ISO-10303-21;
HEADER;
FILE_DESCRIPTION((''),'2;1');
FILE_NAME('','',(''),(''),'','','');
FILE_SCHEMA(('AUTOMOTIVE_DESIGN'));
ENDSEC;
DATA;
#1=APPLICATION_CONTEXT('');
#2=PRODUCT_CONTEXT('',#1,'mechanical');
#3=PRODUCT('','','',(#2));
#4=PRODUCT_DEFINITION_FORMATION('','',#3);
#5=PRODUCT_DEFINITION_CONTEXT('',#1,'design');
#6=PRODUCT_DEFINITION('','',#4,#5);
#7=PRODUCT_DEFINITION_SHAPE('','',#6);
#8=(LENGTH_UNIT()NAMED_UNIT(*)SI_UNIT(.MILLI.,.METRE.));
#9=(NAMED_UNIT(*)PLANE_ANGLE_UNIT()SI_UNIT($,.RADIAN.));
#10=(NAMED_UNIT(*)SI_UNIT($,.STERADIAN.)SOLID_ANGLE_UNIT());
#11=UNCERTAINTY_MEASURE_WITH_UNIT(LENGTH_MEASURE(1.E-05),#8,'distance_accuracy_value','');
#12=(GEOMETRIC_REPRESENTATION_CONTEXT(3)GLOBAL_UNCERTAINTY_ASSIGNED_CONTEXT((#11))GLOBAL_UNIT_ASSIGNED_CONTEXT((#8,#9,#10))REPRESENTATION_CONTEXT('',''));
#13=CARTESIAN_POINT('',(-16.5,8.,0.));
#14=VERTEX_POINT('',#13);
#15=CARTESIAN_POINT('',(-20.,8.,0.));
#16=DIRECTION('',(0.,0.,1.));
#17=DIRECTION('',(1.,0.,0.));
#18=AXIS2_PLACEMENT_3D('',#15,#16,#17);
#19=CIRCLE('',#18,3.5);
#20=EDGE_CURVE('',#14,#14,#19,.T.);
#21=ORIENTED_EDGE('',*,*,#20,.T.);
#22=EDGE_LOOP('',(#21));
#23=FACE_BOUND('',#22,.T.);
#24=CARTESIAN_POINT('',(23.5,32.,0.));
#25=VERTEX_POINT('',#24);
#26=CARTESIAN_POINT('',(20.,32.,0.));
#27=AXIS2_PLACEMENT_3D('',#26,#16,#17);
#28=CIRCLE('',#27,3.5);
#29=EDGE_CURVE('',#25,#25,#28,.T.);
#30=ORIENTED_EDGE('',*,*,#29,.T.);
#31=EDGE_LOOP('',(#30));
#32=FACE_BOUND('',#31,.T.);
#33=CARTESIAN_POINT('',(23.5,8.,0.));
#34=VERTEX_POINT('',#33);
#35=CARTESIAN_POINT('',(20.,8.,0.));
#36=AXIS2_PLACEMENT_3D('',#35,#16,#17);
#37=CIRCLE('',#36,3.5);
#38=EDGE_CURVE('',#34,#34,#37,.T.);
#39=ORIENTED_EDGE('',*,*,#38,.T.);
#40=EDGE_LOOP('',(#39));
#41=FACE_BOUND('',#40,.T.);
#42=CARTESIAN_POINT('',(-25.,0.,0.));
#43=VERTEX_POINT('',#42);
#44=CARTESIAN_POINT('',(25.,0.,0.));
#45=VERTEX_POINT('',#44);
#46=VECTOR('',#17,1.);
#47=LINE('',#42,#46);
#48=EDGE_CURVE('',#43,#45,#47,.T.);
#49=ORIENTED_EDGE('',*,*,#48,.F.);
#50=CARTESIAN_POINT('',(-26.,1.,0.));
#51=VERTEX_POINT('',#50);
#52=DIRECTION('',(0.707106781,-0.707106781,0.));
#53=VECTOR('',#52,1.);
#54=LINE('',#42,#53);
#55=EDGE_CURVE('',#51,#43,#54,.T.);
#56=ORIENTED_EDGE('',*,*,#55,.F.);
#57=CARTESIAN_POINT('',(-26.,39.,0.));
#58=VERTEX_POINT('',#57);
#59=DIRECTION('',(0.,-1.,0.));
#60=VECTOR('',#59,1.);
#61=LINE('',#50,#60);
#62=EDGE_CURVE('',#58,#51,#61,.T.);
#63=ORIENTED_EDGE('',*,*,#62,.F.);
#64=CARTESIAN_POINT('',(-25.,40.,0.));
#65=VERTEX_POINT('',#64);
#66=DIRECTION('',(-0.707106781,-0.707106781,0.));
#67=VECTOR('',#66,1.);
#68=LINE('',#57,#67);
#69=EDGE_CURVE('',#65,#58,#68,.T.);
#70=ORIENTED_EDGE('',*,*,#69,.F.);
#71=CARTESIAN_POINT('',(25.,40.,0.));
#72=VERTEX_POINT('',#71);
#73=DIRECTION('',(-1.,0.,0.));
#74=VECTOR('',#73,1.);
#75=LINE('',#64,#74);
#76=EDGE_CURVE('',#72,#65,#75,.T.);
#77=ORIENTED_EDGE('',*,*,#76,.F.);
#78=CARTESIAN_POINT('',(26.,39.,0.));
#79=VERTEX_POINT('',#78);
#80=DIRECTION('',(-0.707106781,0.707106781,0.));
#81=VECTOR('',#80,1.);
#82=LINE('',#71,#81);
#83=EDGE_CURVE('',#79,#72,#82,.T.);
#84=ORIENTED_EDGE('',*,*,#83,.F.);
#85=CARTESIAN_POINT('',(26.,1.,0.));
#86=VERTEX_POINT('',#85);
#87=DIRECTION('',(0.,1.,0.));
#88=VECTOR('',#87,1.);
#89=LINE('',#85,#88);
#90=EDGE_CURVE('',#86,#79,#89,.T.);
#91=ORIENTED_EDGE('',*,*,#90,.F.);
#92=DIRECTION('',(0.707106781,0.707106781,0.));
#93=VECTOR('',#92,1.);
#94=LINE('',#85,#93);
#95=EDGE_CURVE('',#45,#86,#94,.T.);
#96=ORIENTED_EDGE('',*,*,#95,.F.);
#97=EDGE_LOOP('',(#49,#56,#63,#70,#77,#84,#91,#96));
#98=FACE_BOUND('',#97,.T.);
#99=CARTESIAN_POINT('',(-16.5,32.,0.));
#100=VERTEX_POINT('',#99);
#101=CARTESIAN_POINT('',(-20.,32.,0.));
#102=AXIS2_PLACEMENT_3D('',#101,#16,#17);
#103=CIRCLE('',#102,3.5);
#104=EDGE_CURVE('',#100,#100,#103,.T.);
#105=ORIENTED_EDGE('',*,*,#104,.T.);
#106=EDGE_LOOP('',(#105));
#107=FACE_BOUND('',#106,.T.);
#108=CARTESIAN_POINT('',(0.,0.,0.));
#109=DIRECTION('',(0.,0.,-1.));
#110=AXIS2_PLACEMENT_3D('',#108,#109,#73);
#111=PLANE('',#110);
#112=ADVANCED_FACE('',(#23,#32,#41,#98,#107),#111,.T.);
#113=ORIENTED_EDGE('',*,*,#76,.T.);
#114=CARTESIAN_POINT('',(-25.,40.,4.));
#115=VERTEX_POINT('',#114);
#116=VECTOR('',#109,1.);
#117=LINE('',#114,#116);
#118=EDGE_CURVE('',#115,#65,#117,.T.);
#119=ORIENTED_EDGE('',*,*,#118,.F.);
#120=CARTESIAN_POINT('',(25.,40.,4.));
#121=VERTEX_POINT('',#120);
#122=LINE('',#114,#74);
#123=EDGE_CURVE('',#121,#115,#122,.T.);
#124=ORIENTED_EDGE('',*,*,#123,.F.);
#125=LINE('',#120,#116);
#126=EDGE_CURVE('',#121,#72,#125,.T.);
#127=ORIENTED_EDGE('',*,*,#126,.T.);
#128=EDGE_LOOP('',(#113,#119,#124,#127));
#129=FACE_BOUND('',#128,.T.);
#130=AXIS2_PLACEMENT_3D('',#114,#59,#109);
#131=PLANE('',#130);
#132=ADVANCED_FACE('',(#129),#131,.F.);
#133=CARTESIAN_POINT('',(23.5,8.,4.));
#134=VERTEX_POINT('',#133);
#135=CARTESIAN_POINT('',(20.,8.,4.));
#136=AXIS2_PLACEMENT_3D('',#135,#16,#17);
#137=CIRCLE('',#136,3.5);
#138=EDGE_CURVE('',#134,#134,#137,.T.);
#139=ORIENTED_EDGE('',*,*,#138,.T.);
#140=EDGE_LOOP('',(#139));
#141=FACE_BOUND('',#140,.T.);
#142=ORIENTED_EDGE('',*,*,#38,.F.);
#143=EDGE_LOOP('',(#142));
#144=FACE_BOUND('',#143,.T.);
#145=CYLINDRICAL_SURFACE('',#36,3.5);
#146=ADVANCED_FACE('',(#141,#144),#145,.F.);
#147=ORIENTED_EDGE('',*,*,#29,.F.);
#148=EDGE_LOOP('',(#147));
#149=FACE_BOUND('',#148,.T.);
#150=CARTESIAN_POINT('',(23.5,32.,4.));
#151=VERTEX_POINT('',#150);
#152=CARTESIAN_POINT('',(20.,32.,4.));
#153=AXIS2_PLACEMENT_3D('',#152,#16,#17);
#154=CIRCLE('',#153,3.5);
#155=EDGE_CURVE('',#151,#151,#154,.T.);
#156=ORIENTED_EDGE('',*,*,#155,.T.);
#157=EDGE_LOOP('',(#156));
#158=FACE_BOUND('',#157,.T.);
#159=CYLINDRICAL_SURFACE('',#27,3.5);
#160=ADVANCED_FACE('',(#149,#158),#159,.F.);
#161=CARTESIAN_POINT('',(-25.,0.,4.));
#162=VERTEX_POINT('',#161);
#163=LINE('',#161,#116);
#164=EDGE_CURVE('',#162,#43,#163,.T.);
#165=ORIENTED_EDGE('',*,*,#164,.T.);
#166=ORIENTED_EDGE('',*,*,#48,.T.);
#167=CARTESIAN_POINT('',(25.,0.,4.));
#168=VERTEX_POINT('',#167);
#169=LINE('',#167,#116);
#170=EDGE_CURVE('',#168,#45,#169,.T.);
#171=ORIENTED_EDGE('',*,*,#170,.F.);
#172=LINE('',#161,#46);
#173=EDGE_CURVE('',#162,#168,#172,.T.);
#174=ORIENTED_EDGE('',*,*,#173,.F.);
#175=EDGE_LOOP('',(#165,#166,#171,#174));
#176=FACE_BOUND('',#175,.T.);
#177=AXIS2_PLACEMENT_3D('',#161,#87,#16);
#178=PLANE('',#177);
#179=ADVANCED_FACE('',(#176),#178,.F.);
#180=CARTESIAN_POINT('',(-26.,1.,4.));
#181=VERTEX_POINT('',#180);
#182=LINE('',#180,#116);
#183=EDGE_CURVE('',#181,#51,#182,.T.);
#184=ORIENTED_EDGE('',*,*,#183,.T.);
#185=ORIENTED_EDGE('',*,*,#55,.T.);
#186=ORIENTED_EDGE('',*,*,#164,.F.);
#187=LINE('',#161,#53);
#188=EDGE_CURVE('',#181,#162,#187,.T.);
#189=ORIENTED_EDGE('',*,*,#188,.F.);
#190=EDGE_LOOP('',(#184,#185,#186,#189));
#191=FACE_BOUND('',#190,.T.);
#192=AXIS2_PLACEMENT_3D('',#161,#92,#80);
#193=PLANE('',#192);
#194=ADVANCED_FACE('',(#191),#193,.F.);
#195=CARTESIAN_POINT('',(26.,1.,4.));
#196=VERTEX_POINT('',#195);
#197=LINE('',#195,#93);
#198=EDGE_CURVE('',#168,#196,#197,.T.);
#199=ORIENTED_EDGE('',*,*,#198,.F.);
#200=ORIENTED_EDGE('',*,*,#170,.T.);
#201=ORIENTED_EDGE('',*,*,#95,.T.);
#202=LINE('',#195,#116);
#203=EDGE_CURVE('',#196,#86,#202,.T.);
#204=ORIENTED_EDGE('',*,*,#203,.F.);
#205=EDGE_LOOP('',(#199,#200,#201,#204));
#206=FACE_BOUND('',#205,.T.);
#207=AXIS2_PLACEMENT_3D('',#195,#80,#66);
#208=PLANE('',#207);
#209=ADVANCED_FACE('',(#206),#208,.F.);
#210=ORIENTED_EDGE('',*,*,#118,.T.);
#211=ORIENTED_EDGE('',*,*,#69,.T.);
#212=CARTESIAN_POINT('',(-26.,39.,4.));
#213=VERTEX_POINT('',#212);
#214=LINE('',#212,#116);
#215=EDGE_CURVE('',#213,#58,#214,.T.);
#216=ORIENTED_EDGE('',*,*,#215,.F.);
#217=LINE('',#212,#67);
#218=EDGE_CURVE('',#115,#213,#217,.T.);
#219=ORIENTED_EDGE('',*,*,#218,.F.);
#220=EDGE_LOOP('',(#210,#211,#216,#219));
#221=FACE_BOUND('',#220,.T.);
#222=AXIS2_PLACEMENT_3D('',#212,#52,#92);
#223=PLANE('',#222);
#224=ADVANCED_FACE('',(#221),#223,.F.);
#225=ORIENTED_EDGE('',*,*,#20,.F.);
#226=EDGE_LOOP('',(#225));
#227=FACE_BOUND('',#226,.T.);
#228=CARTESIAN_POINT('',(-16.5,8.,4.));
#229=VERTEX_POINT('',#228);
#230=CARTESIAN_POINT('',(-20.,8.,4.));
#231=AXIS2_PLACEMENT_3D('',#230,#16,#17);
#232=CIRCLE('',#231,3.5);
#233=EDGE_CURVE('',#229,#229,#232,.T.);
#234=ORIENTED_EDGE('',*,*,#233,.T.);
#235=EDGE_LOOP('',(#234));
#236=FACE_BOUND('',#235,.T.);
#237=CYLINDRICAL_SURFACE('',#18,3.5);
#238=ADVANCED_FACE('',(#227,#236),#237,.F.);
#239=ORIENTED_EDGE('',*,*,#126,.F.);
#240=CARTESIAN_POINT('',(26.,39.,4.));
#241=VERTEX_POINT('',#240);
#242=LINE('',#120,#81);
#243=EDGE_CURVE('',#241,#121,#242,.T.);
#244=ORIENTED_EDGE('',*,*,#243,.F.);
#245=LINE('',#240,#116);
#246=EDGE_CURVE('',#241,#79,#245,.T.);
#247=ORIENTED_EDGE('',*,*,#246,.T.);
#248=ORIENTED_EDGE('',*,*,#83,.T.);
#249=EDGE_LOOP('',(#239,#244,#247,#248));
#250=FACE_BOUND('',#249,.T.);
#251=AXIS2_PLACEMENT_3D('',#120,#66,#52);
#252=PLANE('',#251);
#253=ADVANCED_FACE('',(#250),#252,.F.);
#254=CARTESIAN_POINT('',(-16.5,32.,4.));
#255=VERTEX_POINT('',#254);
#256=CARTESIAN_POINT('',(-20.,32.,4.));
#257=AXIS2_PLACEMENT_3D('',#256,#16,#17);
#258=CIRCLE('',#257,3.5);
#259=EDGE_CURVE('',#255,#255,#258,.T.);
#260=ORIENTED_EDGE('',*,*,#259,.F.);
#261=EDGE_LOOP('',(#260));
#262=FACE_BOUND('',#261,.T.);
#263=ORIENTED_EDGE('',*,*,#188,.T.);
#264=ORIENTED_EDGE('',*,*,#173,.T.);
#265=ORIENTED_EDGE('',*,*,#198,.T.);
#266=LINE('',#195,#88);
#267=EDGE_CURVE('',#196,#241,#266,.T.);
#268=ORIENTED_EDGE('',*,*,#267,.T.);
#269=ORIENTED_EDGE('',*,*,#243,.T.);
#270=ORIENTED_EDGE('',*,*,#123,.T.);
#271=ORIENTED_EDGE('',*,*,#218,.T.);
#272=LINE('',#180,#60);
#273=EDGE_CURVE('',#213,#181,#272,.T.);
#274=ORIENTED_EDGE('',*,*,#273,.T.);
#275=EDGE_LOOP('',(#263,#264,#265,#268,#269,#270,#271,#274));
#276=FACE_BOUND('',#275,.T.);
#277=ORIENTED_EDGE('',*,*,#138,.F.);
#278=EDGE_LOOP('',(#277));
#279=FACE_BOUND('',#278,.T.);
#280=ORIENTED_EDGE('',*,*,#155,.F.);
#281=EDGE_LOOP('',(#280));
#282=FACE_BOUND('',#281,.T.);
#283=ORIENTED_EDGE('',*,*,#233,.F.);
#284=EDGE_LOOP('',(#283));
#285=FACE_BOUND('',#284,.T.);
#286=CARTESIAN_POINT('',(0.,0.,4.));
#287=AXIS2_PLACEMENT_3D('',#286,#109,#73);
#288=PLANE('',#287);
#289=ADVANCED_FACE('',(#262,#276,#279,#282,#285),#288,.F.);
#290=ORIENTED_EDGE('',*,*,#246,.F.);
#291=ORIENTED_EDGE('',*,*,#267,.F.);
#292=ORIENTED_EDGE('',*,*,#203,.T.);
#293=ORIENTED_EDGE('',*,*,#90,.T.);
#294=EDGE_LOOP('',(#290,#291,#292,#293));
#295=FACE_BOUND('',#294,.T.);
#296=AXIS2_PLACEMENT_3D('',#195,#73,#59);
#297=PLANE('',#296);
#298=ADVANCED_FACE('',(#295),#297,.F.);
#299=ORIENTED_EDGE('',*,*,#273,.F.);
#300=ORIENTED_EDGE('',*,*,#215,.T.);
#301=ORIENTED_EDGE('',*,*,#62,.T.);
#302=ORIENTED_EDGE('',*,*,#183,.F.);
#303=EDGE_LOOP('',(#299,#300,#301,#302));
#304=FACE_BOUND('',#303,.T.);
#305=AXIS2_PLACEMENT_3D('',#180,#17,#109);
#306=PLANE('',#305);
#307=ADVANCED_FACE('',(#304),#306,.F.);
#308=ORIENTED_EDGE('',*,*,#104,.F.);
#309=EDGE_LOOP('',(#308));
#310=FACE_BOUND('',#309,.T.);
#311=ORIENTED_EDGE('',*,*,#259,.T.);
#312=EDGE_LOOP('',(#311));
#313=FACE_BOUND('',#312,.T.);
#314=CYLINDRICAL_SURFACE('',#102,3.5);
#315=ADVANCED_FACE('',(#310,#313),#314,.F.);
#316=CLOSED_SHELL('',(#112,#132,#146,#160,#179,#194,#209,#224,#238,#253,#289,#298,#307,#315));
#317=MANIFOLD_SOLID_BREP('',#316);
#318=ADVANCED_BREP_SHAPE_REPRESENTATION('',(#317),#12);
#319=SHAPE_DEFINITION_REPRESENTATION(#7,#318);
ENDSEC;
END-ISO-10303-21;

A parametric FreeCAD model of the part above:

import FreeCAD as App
import Part
import Sketcher

V = App.Vector
Q = App.Units.Quantity

doc = App.newDocument("Part")
body = doc.addObject("PartDesign::Body", "Body")

sketch1 = body.newObject("Sketcher::SketchObject", "Sketch")
sketch1.AttachmentSupport = (doc.getObject("XY_Plane"), [""])
sketch1.MapMode = "FlatFace"
sketch1.addGeometry([
    Part.LineSegment(V(25, 40, 0), V(-25, 40, 0)),
    Part.LineSegment(V(-25, 40, 0), V(-26, 39, 0)),
    Part.LineSegment(V(-26, 39, 0), V(-26, 1, 0)),
    Part.LineSegment(V(-26, 1, 0), V(-25, 0, 0)),
    Part.LineSegment(V(-25, 0, 0), V(25, 0, 0)),
    Part.LineSegment(V(25, 0, 0), V(26, 1, 0)),
    Part.LineSegment(V(26, 1, 0), V(26, 39, 0)),
    Part.LineSegment(V(26, 39, 0), V(25, 40, 0)),
], False)
sketch1.addConstraint([
    Sketcher.Constraint("Coincident", 0, 2, 1, 1),
    Sketcher.Constraint("Coincident", 1, 2, 2, 1),
    Sketcher.Constraint("Coincident", 2, 2, 3, 1),
    Sketcher.Constraint("Coincident", 3, 2, 4, 1),
    Sketcher.Constraint("Coincident", 4, 2, 5, 1),
    Sketcher.Constraint("Coincident", 5, 2, 6, 1),
    Sketcher.Constraint("Coincident", 6, 2, 7, 1),
    Sketcher.Constraint("Coincident", 7, 2, 0, 1),
    Sketcher.Constraint("Horizontal", 0),
    Sketcher.Constraint("Vertical", 2),
    Sketcher.Constraint("Horizontal", 4),
    Sketcher.Constraint("Vertical", 6),
    Sketcher.Constraint("Symmetric", 3, 2, 4, 2, -1, 1),
    Sketcher.Constraint("Symmetric", 2, 2, 5, 2, -2),
    Sketcher.Constraint("Perpendicular", 1, 3),
    Sketcher.Constraint("Perpendicular", 3, 5),
    Sketcher.Constraint("Perpendicular", 5, 7),
    Sketcher.Constraint("Horizontal", 1, 2, 6, 2),
    Sketcher.Constraint("Vertical", 0, 2, 3, 2),
    Sketcher.Constraint("DistanceX", 0, 2, 0, 1, Q("50 mm")),
    Sketcher.Constraint("DistanceY", 2, 2, 2, 1, Q("38 mm")),
    Sketcher.Constraint("DistanceY", -1, 1, 0, 2, Q("40 mm")),
])
pad1 = body.newObject("PartDesign::Pad", "Pad")
pad1.Profile = sketch1
pad1.Length = 4

sketch2 = body.newObject("Sketcher::SketchObject", "Sketch001")
sketch2.AttachmentSupport = (doc.getObject("XY_Plane"), [""])
sketch2.MapMode = "FlatFace"
sketch2.AttachmentOffset = App.Placement(V(0, 0, 4), App.Rotation())
sketch2.addGeometry([
    Part.Circle(V(20, 32, 0), V(0, 0, 1), 3.5),
    Part.Circle(V(-20, 32, 0), V(0, 0, 1), 3.5),
    Part.Circle(V(20, 8, 0), V(0, 0, 1), 3.5),
    Part.Circle(V(-20, 8, 0), V(0, 0, 1), 3.5),
], False)
sketch2.addConstraint([
    Sketcher.Constraint("Equal", 0, 1),
    Sketcher.Constraint("Equal", 1, 2),
    Sketcher.Constraint("Equal", 2, 3),
    Sketcher.Constraint("Symmetric", 0, 3, 1, 3, -2),
    Sketcher.Constraint("Symmetric", 2, 3, 3, 3, -2),
    Sketcher.Constraint("Vertical", 0, 3, 2, 3),
    Sketcher.Constraint("Diameter", 0, Q("7 mm")),
    Sketcher.Constraint("DistanceX", -1, 1, 0, 3, Q("20 mm")),
    Sketcher.Constraint("DistanceY", -1, 1, 0, 3, Q("32 mm")),
    Sketcher.Constraint("DistanceY", -1, 1, 2, 3, Q("8 mm")),
])
pocket1 = body.newObject("PartDesign::Pocket", "Pocket")
pocket1.Profile = sketch2
pocket1.Type = "ThroughAll"

doc.recompute()
